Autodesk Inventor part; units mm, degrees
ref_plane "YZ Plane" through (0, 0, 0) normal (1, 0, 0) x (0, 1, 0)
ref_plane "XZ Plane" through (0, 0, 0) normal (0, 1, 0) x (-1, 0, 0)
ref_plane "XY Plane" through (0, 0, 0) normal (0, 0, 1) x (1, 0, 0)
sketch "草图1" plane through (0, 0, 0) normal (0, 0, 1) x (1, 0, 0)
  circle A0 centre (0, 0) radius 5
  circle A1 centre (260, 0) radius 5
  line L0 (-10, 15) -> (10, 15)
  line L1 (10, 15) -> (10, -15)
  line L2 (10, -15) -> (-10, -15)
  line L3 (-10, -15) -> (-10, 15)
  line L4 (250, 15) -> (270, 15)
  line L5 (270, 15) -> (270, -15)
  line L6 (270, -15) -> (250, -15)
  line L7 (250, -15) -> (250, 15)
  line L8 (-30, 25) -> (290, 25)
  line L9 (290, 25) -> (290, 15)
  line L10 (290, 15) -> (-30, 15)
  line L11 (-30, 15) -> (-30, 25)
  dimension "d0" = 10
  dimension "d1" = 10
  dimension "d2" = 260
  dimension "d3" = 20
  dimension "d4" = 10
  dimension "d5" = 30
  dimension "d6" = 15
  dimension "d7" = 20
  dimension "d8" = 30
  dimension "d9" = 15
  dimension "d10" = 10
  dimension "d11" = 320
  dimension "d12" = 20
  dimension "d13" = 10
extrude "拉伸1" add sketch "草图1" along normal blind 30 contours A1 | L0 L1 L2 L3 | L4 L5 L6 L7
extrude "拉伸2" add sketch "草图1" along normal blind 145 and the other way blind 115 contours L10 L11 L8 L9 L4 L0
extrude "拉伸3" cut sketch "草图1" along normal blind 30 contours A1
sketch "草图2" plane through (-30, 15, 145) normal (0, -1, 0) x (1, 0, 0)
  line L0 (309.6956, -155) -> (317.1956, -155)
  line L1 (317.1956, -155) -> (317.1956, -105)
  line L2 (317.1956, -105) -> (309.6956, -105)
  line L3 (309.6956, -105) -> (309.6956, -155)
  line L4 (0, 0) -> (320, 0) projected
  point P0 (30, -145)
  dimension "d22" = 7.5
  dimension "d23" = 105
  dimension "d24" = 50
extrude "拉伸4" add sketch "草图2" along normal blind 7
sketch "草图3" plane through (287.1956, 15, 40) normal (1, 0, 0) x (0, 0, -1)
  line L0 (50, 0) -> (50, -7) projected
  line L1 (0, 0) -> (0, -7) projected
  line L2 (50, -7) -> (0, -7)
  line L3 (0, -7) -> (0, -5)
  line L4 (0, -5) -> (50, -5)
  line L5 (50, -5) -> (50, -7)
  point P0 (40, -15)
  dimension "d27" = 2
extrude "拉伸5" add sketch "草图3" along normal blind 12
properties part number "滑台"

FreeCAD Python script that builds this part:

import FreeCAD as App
import Part
import Sketcher
Q = App.Units.Quantity

doc = App.newDocument("Part")
body = doc.addObject("PartDesign::Body", "Body")
body.AllowCompound = True

# Sketch on XY plane
sketch1 = doc.addObject("Sketcher::SketchObject", "Sketch")
body.addObject(sketch1)
sketch1.AttachmentSupport = (doc.XY_Plane, [""])
sketch1.MapMode = "FlatFace"
sketch1.addGeometry([
    Part.LineSegment(App.Vector(270, 15, 0), App.Vector(250, 15, 0)),  # 0
    Part.LineSegment(App.Vector(250, 15, 0), App.Vector(250, -15, 0)),  # 1
    Part.LineSegment(App.Vector(250, -15, 0), App.Vector(270, -15, 0)),  # 2
    Part.LineSegment(App.Vector(270, -15, 0), App.Vector(270, 15, 0)),  # 3
    Part.LineSegment(App.Vector(10, 15, 0), App.Vector(-10, 15, 0)),  # 4
    Part.LineSegment(App.Vector(-10, 15, 0), App.Vector(-10, -15, 0)),  # 5
    Part.LineSegment(App.Vector(-10, -15, 0), App.Vector(10, -15, 0)),  # 6
    Part.LineSegment(App.Vector(10, -15, 0), App.Vector(10, 15, 0)),  # 7
    Part.Circle(App.Vector(0, 0, 0), App.Vector(0, 0, 1), 5),  # 8
], False)
sketch1.addConstraint([
    Sketcher.Constraint("Coincident", 0, 2, 1, 1),
    Sketcher.Constraint("Coincident", 1, 2, 2, 1),
    Sketcher.Constraint("Coincident", 2, 2, 3, 1),
    Sketcher.Constraint("Coincident", 3, 2, 0, 1),
    Sketcher.Constraint("Coincident", 4, 2, 5, 1),
    Sketcher.Constraint("Coincident", 5, 2, 6, 1),
    Sketcher.Constraint("Coincident", 6, 2, 7, 1),
    Sketcher.Constraint("Coincident", 7, 2, 4, 1),
    Sketcher.Constraint("Horizontal", 0),
    Sketcher.Constraint("Vertical", 1),
    Sketcher.Constraint("Horizontal", 2),
    Sketcher.Constraint("Vertical", 3),
    Sketcher.Constraint("Horizontal", 4),
    Sketcher.Constraint("Vertical", 5),
    Sketcher.Constraint("Horizontal", 6),
    Sketcher.Constraint("Vertical", 7),
    Sketcher.Constraint("Coincident", 8, 3, -1, 1),
    Sketcher.Constraint("Symmetric", 4, 2, 6, 2, -1, 1),
    Sketcher.Constraint("Horizontal", 3, 2, 4, 2),
    Sketcher.Constraint("Horizontal", 2, 2, 5, 2),
    Sketcher.Constraint("Equal", 2, 4),
    Sketcher.Constraint("Diameter", 8, Q("10 mm")),
    Sketcher.Constraint("DistanceX", 0, 2, 0, 1, Q("20 mm")),
    Sketcher.Constraint("DistanceY", 1, 2, 1, 1, Q("30 mm")),
    Sketcher.Constraint("DistanceX", 4, 2, 0, 2, Q("260 mm")),
])
pad1 = doc.addObject("PartDesign::Pad", "Pad")
body.addObject(pad1)
pad1.Profile = sketch1
pad1.Length = 30

# Sketch on XY plane
sketch2 = doc.addObject("Sketcher::SketchObject", "Sketch001")
body.addObject(sketch2)
sketch2.AttachmentSupport = (doc.XY_Plane, [""])
sketch2.MapMode = "FlatFace"
sketch2.addGeometry([
    Part.LineSegment(App.Vector(-30, 15, 0), App.Vector(290, 15, 0)),
    Part.LineSegment(App.Vector(290, 15, 0), App.Vector(290, 25, 0)),
    Part.LineSegment(App.Vector(290, 25, 0), App.Vector(-30, 25, 0)),
    Part.LineSegment(App.Vector(-30, 25, 0), App.Vector(-30, 15, 0)),
], False)
sketch2.addConstraint([
    Sketcher.Constraint("Coincident", 0, 2, 1, 1),
    Sketcher.Constraint("Coincident", 1, 2, 2, 1),
    Sketcher.Constraint("Coincident", 2, 2, 3, 1),
    Sketcher.Constraint("Coincident", 3, 2, 0, 1),
    Sketcher.Constraint("Horizontal", 0),
    Sketcher.Constraint("Vertical", 1),
    Sketcher.Constraint("Horizontal", 2),
    Sketcher.Constraint("Vertical", 3),
    Sketcher.Constraint("DistanceX", 0, 1, 0, 2, Q("320 mm")),
    Sketcher.Constraint("DistanceY", 1, 1, 1, 2, Q("10 mm")),
    Sketcher.Constraint("DistanceY", -1, 1, 0, 2, Q("15 mm")),
    Sketcher.Constraint("DistanceX", 2, 2, -1, 1, Q("30 mm")),
])
pad2 = doc.addObject("PartDesign::Pad", "Pad001")
body.addObject(pad2)
pad2.Profile = sketch2
pad2.Type = "TwoLengths"
pad2.Length = 145
pad2.Length2 = 115

# Sketch on XY plane
sketch3 = doc.addObject("Sketcher::SketchObject", "Sketch002")
body.addObject(sketch3)
sketch3.AttachmentSupport = (doc.XY_Plane, [""])
sketch3.MapMode = "FlatFace"
sketch3.addGeometry(Part.Circle(App.Vector(260, 0, 0), App.Vector(0, 0, 1), 5), False)
sketch3.addConstraint([
    Sketcher.Constraint("PointOnObject", 0, 3, -1),
    Sketcher.Constraint("Diameter", 0, Q("10 mm")),
    Sketcher.Constraint("DistanceX", -1, 1, 0, 3, Q("260 mm")),
])
pocket1 = doc.addObject("PartDesign::Pocket", "Pocket")
body.addObject(pocket1)
pocket1.Profile = sketch3
pocket1.Length = 30
pocket1.Reversed = True

# Sketch on XZ plane
sketch4 = doc.addObject("Sketcher::SketchObject", "Sketch003")
body.addObject(sketch4)
sketch4.AttachmentSupport = (doc.XZ_Plane, [""])
sketch4.MapMode = "FlatFace"
sketch4.AttachmentOffset = App.Placement(App.Vector(0, 0, -15), App.Rotation())
sketch4.addGeometry([
    Part.LineSegment(App.Vector(280, 40, 0), App.Vector(280, -10, 0)),
    Part.LineSegment(App.Vector(280, -10, 0), App.Vector(287, -10, 0)),
    Part.LineSegment(App.Vector(287, -10, 0), App.Vector(287, 40, 0)),
    Part.LineSegment(App.Vector(287, 40, 0), App.Vector(280, 40, 0)),
], False)
sketch4.addConstraint([
    Sketcher.Constraint("Coincident", 0, 2, 1, 1),
    Sketcher.Constraint("Coincident", 1, 2, 2, 1),
    Sketcher.Constraint("Coincident", 2, 2, 3, 1),
    Sketcher.Constraint("Coincident", 3, 2, 0, 1),
    Sketcher.Constraint("Vertical", 0),
    Sketcher.Constraint("Horizontal", 1),
    Sketcher.Constraint("Vertical", 2),
    Sketcher.Constraint("Horizontal", 3),
    Sketcher.Constraint("DistanceY", 0, 2, 0, 1, Q("50 mm")),
    Sketcher.Constraint("DistanceX", 1, 1, 1, 2, Q("7.5 mm")),
    Sketcher.Constraint("DistanceY", 0, 2, -1, 1, Q("10 mm")),
    Sketcher.Constraint("DistanceX", -1, 1, 0, 2, Q("279.6956 mm")),
])
pad3 = doc.addObject("PartDesign::Pad", "Pad002")
body.addObject(pad3)
pad3.Profile = sketch4
pad3.Length = 7

# Sketch on YZ plane
sketch5 = doc.addObject("Sketcher::SketchObject", "Sketch004")
body.addObject(sketch5)
sketch5.AttachmentSupport = (doc.YZ_Plane, [""])
sketch5.MapMode = "FlatFace"
sketch5.AttachmentOffset = App.Placement(App.Vector(0, 0, 287.1956), App.Rotation())
sketch5.addGeometry([
    Part.LineSegment(App.Vector(8, -10, 0), App.Vector(10, -10, 0)),
    Part.LineSegment(App.Vector(10, -10, 0), App.Vector(10, 40, 0)),
    Part.LineSegment(App.Vector(10, 40, 0), App.Vector(8, 40, 0)),
    Part.LineSegment(App.Vector(8, 40, 0), App.Vector(8, -10, 0)),
], False)
sketch5.addConstraint([
    Sketcher.Constraint("Coincident", 0, 2, 1, 1),
    Sketcher.Constraint("Coincident", 1, 2, 2, 1),
    Sketcher.Constraint("Coincident", 2, 2, 3, 1),
    Sketcher.Constraint("Coincident", 3, 2, 0, 1),
    Sketcher.Constraint("Horizontal", 0),
    Sketcher.Constraint("Vertical", 1),
    Sketcher.Constraint("Horizontal", 2),
    Sketcher.Constraint("Vertical", 3),
    Sketcher.Constraint("DistanceX", 0, 1, 0, 2, Q("2 mm")),
    Sketcher.Constraint("DistanceY", 1, 1, 1, 2, Q("50 mm")),
    Sketcher.Constraint("DistanceX", -1, 1, 0, 2, Q("10 mm")),
    Sketcher.Constraint("DistanceY", 0, 2, -1, 1, Q("10 mm")),
])
pad4 = doc.addObject("PartDesign::Pad", "Pad003")
body.addObject(pad4)
pad4.Profile = sketch5
pad4.Length = 12

doc.recompute()
